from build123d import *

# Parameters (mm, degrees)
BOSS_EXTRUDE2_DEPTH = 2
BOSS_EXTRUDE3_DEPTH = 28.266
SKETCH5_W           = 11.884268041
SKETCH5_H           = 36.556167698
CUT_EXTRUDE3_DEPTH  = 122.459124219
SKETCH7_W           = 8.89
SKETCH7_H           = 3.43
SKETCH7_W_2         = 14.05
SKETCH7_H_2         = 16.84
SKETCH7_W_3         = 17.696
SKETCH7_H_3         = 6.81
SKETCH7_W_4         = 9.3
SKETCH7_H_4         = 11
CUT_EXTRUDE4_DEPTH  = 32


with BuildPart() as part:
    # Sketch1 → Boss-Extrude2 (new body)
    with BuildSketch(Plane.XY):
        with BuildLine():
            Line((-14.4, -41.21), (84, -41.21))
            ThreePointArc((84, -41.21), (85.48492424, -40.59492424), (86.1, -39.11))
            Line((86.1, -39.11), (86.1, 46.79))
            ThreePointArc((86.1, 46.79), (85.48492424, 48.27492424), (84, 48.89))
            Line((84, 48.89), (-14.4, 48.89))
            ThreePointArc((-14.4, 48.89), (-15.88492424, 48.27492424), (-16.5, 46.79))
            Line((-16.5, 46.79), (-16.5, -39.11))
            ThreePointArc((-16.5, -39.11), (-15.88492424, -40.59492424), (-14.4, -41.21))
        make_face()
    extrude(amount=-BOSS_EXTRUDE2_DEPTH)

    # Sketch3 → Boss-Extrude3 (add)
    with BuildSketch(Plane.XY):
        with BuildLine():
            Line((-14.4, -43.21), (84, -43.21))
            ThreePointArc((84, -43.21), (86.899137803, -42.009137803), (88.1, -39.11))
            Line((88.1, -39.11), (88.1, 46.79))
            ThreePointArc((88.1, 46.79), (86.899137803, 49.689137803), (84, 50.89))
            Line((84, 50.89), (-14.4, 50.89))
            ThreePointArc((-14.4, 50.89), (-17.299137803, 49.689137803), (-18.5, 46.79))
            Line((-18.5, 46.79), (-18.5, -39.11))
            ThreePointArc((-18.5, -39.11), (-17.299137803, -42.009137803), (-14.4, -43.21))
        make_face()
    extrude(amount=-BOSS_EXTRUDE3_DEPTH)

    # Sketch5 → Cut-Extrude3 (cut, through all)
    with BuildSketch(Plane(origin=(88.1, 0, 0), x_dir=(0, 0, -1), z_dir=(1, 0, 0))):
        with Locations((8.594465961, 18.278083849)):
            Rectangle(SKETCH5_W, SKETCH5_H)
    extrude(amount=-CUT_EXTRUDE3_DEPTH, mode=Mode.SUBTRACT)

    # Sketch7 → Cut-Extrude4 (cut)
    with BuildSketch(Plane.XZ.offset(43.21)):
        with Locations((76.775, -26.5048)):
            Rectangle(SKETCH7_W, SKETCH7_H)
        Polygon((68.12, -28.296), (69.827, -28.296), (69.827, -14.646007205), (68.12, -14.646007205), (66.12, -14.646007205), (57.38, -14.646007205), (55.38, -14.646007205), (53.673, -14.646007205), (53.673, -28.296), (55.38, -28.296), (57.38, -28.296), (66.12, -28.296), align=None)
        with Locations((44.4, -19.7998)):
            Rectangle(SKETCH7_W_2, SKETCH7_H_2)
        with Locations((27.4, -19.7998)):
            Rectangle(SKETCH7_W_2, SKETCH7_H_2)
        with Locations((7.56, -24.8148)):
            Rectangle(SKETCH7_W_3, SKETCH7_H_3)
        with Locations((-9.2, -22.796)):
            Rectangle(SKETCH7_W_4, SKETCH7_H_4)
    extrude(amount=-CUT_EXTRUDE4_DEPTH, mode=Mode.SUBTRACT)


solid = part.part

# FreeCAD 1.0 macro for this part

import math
import FreeCAD as App
import Part
import Sketcher
Q = App.Units.Quantity

doc = App.newDocument("Part")
params = doc.addObject("Spreadsheet::Sheet", "Params")
for row, (alias, value) in enumerate([
    ("sketch1_radius", "2.1 mm"),
    ("sketch1_width", "98.4 mm"),
    ("sketch1_height", "85.9 mm"),
    ("pad1_length", "2 mm"),
    ("sketch2_radius", "4.1 mm"),
    ("sketch2_width", "98.4 mm"),
    ("sketch2_height", "85.9 mm"),
    ("pad2_length", "28.266 mm"),
    ("sketch4_height", "11 mm"),
    ("sketch4_width", "9.3 mm"),
    ("sketch4_width2", "8.89 mm"),
    ("sketch4_width3", "14.05 mm"),
    ("sketch4_height2", "3.43 mm"),
    ("pocket2_length", "32 mm"),
], start=1):
    params.set(f"A{row}", alias)
    params.set(f"B{row}", "=" + value)
    params.setAlias(f"B{row}", alias)

body = doc.addObject("PartDesign::Body", "Body")

# Sketch on XY plane
sketch1 = doc.addObject("Sketcher::SketchObject", "Sketch")
body.addObject(sketch1)
sketch1.AttachmentSupport = (doc.XY_Plane, [""])
sketch1.MapMode = "FlatFace"
sketch1.addGeometry(Part.LineSegment(App.Vector(-14.4, -41.21, 0), App.Vector(84, -41.21, 0)), False)
sketch1.addGeometry(Part.ArcOfCircle(Part.Circle(App.Vector(84, -39.11, 0), App.Vector(0, 0, 1), 2.1), math.radians(-90), math.radians(0)), False)
sketch1.addGeometry(Part.LineSegment(App.Vector(86.1, -39.11, 0), App.Vector(86.1, 46.79, 0)), False)
sketch1.addGeometry(Part.ArcOfCircle(Part.Circle(App.Vector(84, 46.79, 0), App.Vector(0, 0, 1), 2.1), math.radians(0), math.radians(90)), False)
sketch1.addGeometry(Part.LineSegment(App.Vector(84, 48.89, 0), App.Vector(-14.4, 48.89, 0)), False)
sketch1.addGeometry(Part.ArcOfCircle(Part.Circle(App.Vector(-14.4, 46.79, 0), App.Vector(0, 0, 1), 2.1), math.radians(90), math.radians(180)), False)
sketch1.addGeometry(Part.LineSegment(App.Vector(-16.5, 46.79, 0), App.Vector(-16.5, -39.11, 0)), False)
sketch1.addGeometry(Part.ArcOfCircle(Part.Circle(App.Vector(-14.4, -39.11, 0), App.Vector(0, 0, 1), 2.1), math.radians(-180), math.radians(-90)), False)
sketch1.addConstraint(Sketcher.Constraint("Tangent", 0, 2, 1, 1))
sketch1.addConstraint(Sketcher.Constraint("Tangent", 1, 2, 2, 1))
sketch1.addConstraint(Sketcher.Constraint("Tangent", 2, 2, 3, 1))
sketch1.addConstraint(Sketcher.Constraint("Tangent", 3, 2, 4, 1))
sketch1.addConstraint(Sketcher.Constraint("Tangent", 4, 2, 5, 1))
sketch1.addConstraint(Sketcher.Constraint("Tangent", 5, 2, 6, 1))
sketch1.addConstraint(Sketcher.Constraint("Tangent", 6, 2, 7, 1))
sketch1.addConstraint(Sketcher.Constraint("Tangent", 7, 2, 0, 1))
sketch1.addConstraint(Sketcher.Constraint("Horizontal", 0))
sketch1.addConstraint(Sketcher.Constraint("Vertical", 2))
sketch1.addConstraint(Sketcher.Constraint("Horizontal", 4))
sketch1.addConstraint(Sketcher.Constraint("Vertical", 6))
sketch1.addConstraint(Sketcher.Constraint("Equal", 1, 3))
sketch1.addConstraint(Sketcher.Constraint("Equal", 3, 5))
sketch1.addConstraint(Sketcher.Constraint("Equal", 5, 7))
sketch1.addConstraint(Sketcher.Constraint("Radius", 1, Q("2.1 mm")))
sketch1.addConstraint(Sketcher.Constraint("DistanceX", 0, 1, 0, 2, Q("98.4 mm")))
sketch1.addConstraint(Sketcher.Constraint("DistanceY", 2, 1, 2, 2, Q("85.9 mm")))
sketch1.addConstraint(Sketcher.Constraint("DistanceX", -1, 1, 1, 3, Q("84 mm")))
sketch1.addConstraint(Sketcher.Constraint("DistanceY", 1, 3, -1, 1, Q("39.11 mm")))
sketch1.setExpression("Constraints[15]", "Params.sketch1_radius")
sketch1.setExpression("Constraints[16]", "Params.sketch1_width")
sketch1.setExpression("Constraints[17]", "Params.sketch1_height")
pad1 = doc.addObject("PartDesign::Pad", "Pad")
body.addObject(pad1)
pad1.Profile = sketch1
pad1.setExpression("Length", "Params.pad1_length")
pad1.Reversed = True

# Sketch on XY plane
sketch2 = doc.addObject("Sketcher::SketchObject", "Sketch001")
body.addObject(sketch2)
sketch2.AttachmentSupport = (doc.XY_Plane, [""])
sketch2.MapMode = "FlatFace"
sketch2.addGeometry(Part.LineSegment(App.Vector(-14.4, -43.21, 0), App.Vector(84, -43.21, 0)), False)
sketch2.addGeometry(Part.ArcOfCircle(Part.Circle(App.Vector(84, -39.11, 0), App.Vector(0, 0, 1), 4.1), math.radians(-90), math.radians(0)), False)
sketch2.addGeometry(Part.LineSegment(App.Vector(88.1, -39.11, 0), App.Vector(88.1, 46.79, 0)), False)
sketch2.addGeometry(Part.ArcOfCircle(Part.Circle(App.Vector(84, 46.79, 0), App.Vector(0, 0, 1), 4.1), math.radians(0), math.radians(90)), False)
sketch2.addGeometry(Part.LineSegment(App.Vector(84, 50.89, 0), App.Vector(-14.4, 50.89, 0)), False)
sketch2.addGeometry(Part.ArcOfCircle(Part.Circle(App.Vector(-14.4, 46.79, 0), App.Vector(0, 0, 1), 4.1), math.radians(90), math.radians(180)), False)
sketch2.addGeometry(Part.LineSegment(App.Vector(-18.5, 46.79, 0), App.Vector(-18.5, -39.11, 0)), False)
sketch2.addGeometry(Part.ArcOfCircle(Part.Circle(App.Vector(-14.4, -39.11, 0), App.Vector(0, 0, 1), 4.1), math.radians(180), math.radians(270)), False)
sketch2.addConstraint(Sketcher.Constraint("Tangent", 0, 2, 1, 1))
sketch2.addConstraint(Sketcher.Constraint("Tangent", 1, 2, 2, 1))
sketch2.addConstraint(Sketcher.Constraint("Tangent", 2, 2, 3, 1))
sketch2.addConstraint(Sketcher.Constraint("Tangent", 3, 2, 4, 1))
sketch2.addConstraint(Sketcher.Constraint("Tangent", 4, 2, 5, 1))
sketch2.addConstraint(Sketcher.Constraint("Tangent", 5, 2, 6, 1))
sketch2.addConstraint(Sketcher.Constraint("Tangent", 6, 2, 7, 1))
sketch2.addConstraint(Sketcher.Constraint("Tangent", 7, 2, 0, 1))
sketch2.addConstraint(Sketcher.Constraint("Horizontal", 0))
sketch2.addConstraint(Sketcher.Constraint("Vertical", 2))
sketch2.addConstraint(Sketcher.Constraint("Horizontal", 4))
sketch2.addConstraint(Sketcher.Constraint("Vertical", 6))
sketch2.addConstraint(Sketcher.Constraint("Equal", 1, 3))
sketch2.addConstraint(Sketcher.Constraint("Equal", 3, 5))
sketch2.addConstraint(Sketcher.Constraint("Equal", 5, 7))
sketch2.addConstraint(Sketcher.Constraint("Radius", 1, Q("4.1 mm")))
sketch2.addConstraint(Sketcher.Constraint("DistanceX", 0, 1, 0, 2, Q("98.4 mm")))
sketch2.addConstraint(Sketcher.Constraint("DistanceY", 2, 1, 2, 2, Q("85.9 mm")))
sketch2.addConstraint(Sketcher.Constraint("DistanceX", -1, 1, 1, 3, Q("84 mm")))
sketch2.addConstraint(Sketcher.Constraint("DistanceY", 1, 3, -1, 1, Q("39.11 mm")))
sketch2.setExpression("Constraints[15]", "Params.sketch2_radius")
sketch2.setExpression("Constraints[16]", "Params.sketch2_width")
sketch2.setExpression("Constraints[17]", "Params.sketch2_height")
pad2 = doc.addObject("PartDesign::Pad", "Pad001")
body.addObject(pad2)
pad2.Profile = sketch2
pad2.setExpression("Length", "Params.pad2_length")
pad2.Reversed = True

# Sketch on YZ plane
sketch3 = doc.addObject("Sketcher::SketchObject", "Sketch002")
body.addObject(sketch3)
sketch3.AttachmentSupport = (doc.YZ_Plane, [""])
sketch3.MapMode = "FlatFace"
sketch3.AttachmentOffset = App.Placement(App.Vector(0, 0, 88.1), App.Rotation())
sketch3.addGeometry(Part.LineSegment(App.Vector(36.556168, -2.652332, 0), App.Vector(0, -2.652332, 0)), False)
sketch3.addGeometry(Part.LineSegment(App.Vector(0, -2.652332, 0), App.Vector(0, -14.5366, 0)), False)
sketch3.addGeometry(Part.LineSegment(App.Vector(0, -14.5366, 0), App.Vector(36.556168, -14.5366, 0)), False)
sketch3.addGeometry(Part.LineSegment(App.Vector(36.556168, -14.5366, 0), App.Vector(36.556168, -2.652332, 0)), False)
sketch3.addConstraint(Sketcher.Constraint("Coincident", 0, 2, 1, 1))
sketch3.addConstraint(Sketcher.Constraint("Coincident", 1, 2, 2, 1))
sketch3.addConstraint(Sketcher.Constraint("Coincident", 2, 2, 3, 1))
sketch3.addConstraint(Sketcher.Constraint("Coincident", 3, 2, 0, 1))
sketch3.addConstraint(Sketcher.Constraint("Horizontal", 0))
sketch3.addConstraint(Sketcher.Constraint("Vertical", 1))
sketch3.addConstraint(Sketcher.Constraint("Horizontal", 2))
sketch3.addConstraint(Sketcher.Constraint("Vertical", 3))
sketch3.addConstraint(Sketcher.Constraint("PointOnObject", 0, 2, -2))
sketch3.addConstraint(Sketcher.Constraint("DistanceY", 1, 2, 1, 1, Q("11.884268 mm")))
sketch3.addConstraint(Sketcher.Constraint("DistanceY", 1, 2, -1, 1, Q("14.5366 mm")))
sketch3.addConstraint(Sketcher.Constraint("DistanceX", 0, 2, 0, 1, Q("36.556168 mm")))
pocket1 = doc.addObject("PartDesign::Pocket", "Pocket")
body.addObject(pocket1)
pocket1.Profile = sketch3
pocket1.Type = "ThroughAll"

# Sketch on XZ plane
sketch4 = doc.addObject("Sketcher::SketchObject", "Sketch003")
body.addObject(sketch4)
sketch4.AttachmentSupport = (doc.XZ_Plane, [""])
sketch4.MapMode = "FlatFace"
sketch4.AttachmentOffset = App.Placement(App.Vector(0, 0, 43.21), App.Rotation())
sketch4.addGeometry(Part.LineSegment(App.Vector(72.33, -24.7898, 0), App.Vector(72.33, -28.2198, 0)), False)
sketch4.addGeometry(Part.LineSegment(App.Vector(72.33, -28.2198, 0), App.Vector(81.22, -28.2198, 0)), False)
sketch4.addGeometry(Part.LineSegment(App.Vector(81.22, -28.2198, 0), App.Vector(81.22, -24.7898, 0)), False)
sketch4.addGeometry(Part.LineSegment(App.Vector(81.22, -24.7898, 0), App.Vector(72.33, -24.7898, 0)), False)
sketch4.addGeometry(Part.LineSegment(App.Vector(69.827, -28.296, 0), App.Vector(69.827, -14.646007, 0)), False)
sketch4.addGeometry(Part.LineSegment(App.Vector(69.827, -14.646007, 0), App.Vector(53.673, -14.646007, 0)), False)
sketch4.addGeometry(Part.LineSegment(App.Vector(53.673, -14.646007, 0), App.Vector(53.673, -28.296, 0)), False)
sketch4.addGeometry(Part.LineSegment(App.Vector(53.673, -28.296, 0), App.Vector(69.827, -28.296, 0)), False)
sketch4.addGeometry(Part.LineSegment(App.Vector(37.375, -11.3798, 0), App.Vector(37.375, -28.2198, 0)), False)
sketch4.addGeometry(Part.LineSegment(App.Vector(37.375, -28.2198, 0), App.Vector(51.425, -28.2198, 0)), False)
sketch4.addGeometry(Part.LineSegment(App.Vector(51.425, -28.2198, 0), App.Vector(51.425, -11.3798, 0)), False)
sketch4.addGeometry(Part.LineSegment(App.Vector(51.425, -11.3798, 0), App.Vector(37.375, -11.3798, 0)), False)
sketch4.addGeometry(Part.LineSegment(App.Vector(20.375, -11.3798, 0), App.Vector(20.375, -28.2198, 0)), False)
sketch4.addGeometry(Part.LineSegment(App.Vector(20.375, -28.2198, 0), App.Vector(34.425, -28.2198, 0)), False)
sketch4.addGeometry(Part.LineSegment(App.Vector(34.425, -28.2198, 0), App.Vector(34.425, -11.3798, 0)), False)
sketch4.addGeometry(Part.LineSegment(App.Vector(34.425, -11.3798, 0), App.Vector(20.375, -11.3798, 0)), False)
sketch4.addGeometry(Part.LineSegment(App.Vector(-1.288, -21.4098, 0), App.Vector(-1.288, -28.2198, 0)), False)
sketch4.addGeometry(Part.LineSegment(App.Vector(-1.288, -28.2198, 0), App.Vector(16.408, -28.2198, 0)), False)
sketch4.addGeometry(Part.LineSegment(App.Vector(16.408, -28.2198, 0), App.Vector(16.408, -21.4098, 0)), False)
sketch4.addGeometry(Part.LineSegment(App.Vector(16.408, -21.4098, 0), App.Vector(-1.288, -21.4098, 0)), False)
sketch4.addGeometry(Part.LineSegment(App.Vector(-13.85, -17.296, 0), App.Vector(-13.85, -28.296, 0)), False)
sketch4.addGeometry(Part.LineSegment(App.Vector(-13.85, -28.296, 0), App.Vector(-4.55, -28.296, 0)), False)
sketch4.addGeometry(Part.LineSegment(App.Vector(-4.55, -28.296, 0), App.Vector(-4.55, -17.296, 0)), False)
sketch4.addGeometry(Part.LineSegment(App.Vector(-4.55, -17.296, 0), App.Vector(-13.85, -17.296, 0)), False)
sketch4.addConstraint(Sketcher.Constraint("Coincident", 0, 2, 1, 1))
sketch4.addConstraint(Sketcher.Constraint("Coincident", 1, 2, 2, 1))
sketch4.addConstraint(Sketcher.Constraint("Coincident", 2, 2, 3, 1))
sketch4.addConstraint(Sketcher.Constraint("Coincident", 3, 2, 0, 1))
sketch4.addConstraint(Sketcher.Constraint("Coincident", 4, 2, 5, 1))
sketch4.addConstraint(Sketcher.Constraint("Coincident", 5, 2, 6, 1))
sketch4.addConstraint(Sketcher.Constraint("Coincident", 6, 2, 7, 1))
sketch4.addConstraint(Sketcher.Constraint("Coincident", 7, 2, 4, 1))
sketch4.addConstraint(Sketcher.Constraint("Coincident", 8, 2, 9, 1))
sketch4.addConstraint(Sketcher.Constraint("Coincident", 9, 2, 10, 1))
sketch4.addConstraint(Sketcher.Constraint("Coincident", 10, 2, 11, 1))
sketch4.addConstraint(Sketcher.Constraint("Coincident", 11, 2, 8, 1))
sketch4.addConstraint(Sketcher.Constraint("Coincident", 12, 2, 13, 1))
sketch4.addConstraint(Sketcher.Constraint("Coincident", 13, 2, 14, 1))
sketch4.addConstraint(Sketcher.Constraint("Coincident", 14, 2, 15, 1))
sketch4.addConstraint(Sketcher.Constraint("Coincident", 15, 2, 12, 1))
sketch4.addConstraint(Sketcher.Constraint("Coincident", 16, 2, 17, 1))
sketch4.addConstraint(Sketcher.Constraint("Coincident", 17, 2, 18, 1))
sketch4.addConstraint(Sketcher.Constraint("Coincident", 18, 2, 19, 1))
sketch4.addConstraint(Sketcher.Constraint("Coincident", 19, 2, 16, 1))
sketch4.addConstraint(Sketcher.Constraint("Coincident", 20, 2, 21, 1))
sketch4.addConstraint(Sketcher.Constraint("Coincident", 21, 2, 22, 1))
sketch4.addConstraint(Sketcher.Constraint("Coincident", 22, 2, 23, 1))
sketch4.addConstraint(Sketcher.Constraint("Coincident", 23, 2, 20, 1))
sketch4.addConstraint(Sketcher.Constraint("Vertical", 0))
sketch4.addConstraint(Sketcher.Constraint("Horizontal", 1))
sketch4.addConstraint(Sketcher.Constraint("Vertical", 2))
sketch4.addConstraint(Sketcher.Constraint("Horizontal", 3))
sketch4.addConstraint(Sketcher.Constraint("Vertical", 4))
sketch4.addConstraint(Sketcher.Constraint("Horizontal", 5))
sketch4.addConstraint(Sketcher.Constraint("Vertical", 6))
sketch4.addConstraint(Sketcher.Constraint("Horizontal", 7))
sketch4.addConstraint(Sketcher.Constraint("Vertical", 8))
sketch4.addConstraint(Sketcher.Constraint("Horizontal", 9))
sketch4.addConstraint(Sketcher.Constraint("Vertical", 10))
sketch4.addConstraint(Sketcher.Constraint("Horizontal", 11))
sketch4.addConstraint(Sketcher.Constraint("Vertical", 12))
sketch4.addConstraint(Sketcher.Constraint("Horizontal", 13))
sketch4.addConstraint(Sketcher.Constraint("Vertical", 14))
sketch4.addConstraint(Sketcher.Constraint("Horizontal", 15))
sketch4.addConstraint(Sketcher.Constraint("Vertical", 16))
sketch4.addConstraint(Sketcher.Constraint("Horizontal", 17))
sketch4.addConstraint(Sketcher.Constraint("Vertical", 18))
sketch4.addConstraint(Sketcher.Constraint("Horizontal", 19))
sketch4.addConstraint(Sketcher.Constraint("Vertical", 20))
sketch4.addConstraint(Sketcher.Constraint("Horizontal", 21))
sketch4.addConstraint(Sketcher.Constraint("Vertical", 22))
sketch4.addConstraint(Sketcher.Constraint("Horizontal", 23))
sketch4.addConstraint(Sketcher.Constraint("Horizontal", 1, 2, 8, 2))
sketch4.addConstraint(Sketcher.Constraint("Horizontal", 9, 2, 12, 2))
sketch4.addConstraint(Sketcher.Constraint("Horizontal", 11, 2, 14, 2))
sketch4.addConstraint(Sketcher.Constraint("Horizontal", 13, 2, 16, 2))
sketch4.addConstraint(Sketcher.Constraint("Horizontal", 7, 2, 20, 2))
sketch4.addConstraint(Sketcher.Constraint("Equal", 11, 13))
sketch4.addConstraint(Sketcher.Constraint("DistanceY", 20, 2, 20, 1, Q("11 mm")))
sketch4.addConstraint(Sketcher.Constraint("DistanceX", 21, 1, 21, 2, Q("9.3 mm")))
sketch4.addConstraint(Sketcher.Constraint("DistanceX", 12, 2, 8, 2, Q("17 mm")))
sketch4.addConstraint(Sketcher.Constraint("DistanceX", 1, 1, 1, 2, Q("8.89 mm")))
sketch4.addConstraint(Sketcher.Constraint("DistanceX", 9, 1, 9, 2, Q("14.05 mm")))
sketch4.addConstraint(Sketcher.Constraint("DistanceY", 0, 2, 0, 1, Q("3.43 mm")))
sketch4.addConstraint(Sketcher.Constraint("DistanceY", 8, 2, 8, 1, Q("16.84 mm")))
sketch4.addConstraint(Sketcher.Constraint("DistanceY", 16, 2, 16, 1, Q("6.81 mm")))
sketch4.addConstraint(Sketcher.Constraint("DistanceX", 5, 2, 5, 1, Q("16.154 mm")))
sketch4.addConstraint(Sketcher.Constraint("DistanceX", 17, 1, 17, 2, Q("17.696 mm")))
sketch4.addConstraint(Sketcher.Constraint("DistanceX", -1, 1, 0, 2, Q("72.33 mm")))
sketch4.addConstraint(Sketcher.Constraint("DistanceX", 20, 2, -1, 1, Q("13.85 mm")))
sketch4.addConstraint(Sketcher.Constraint("DistanceX", -1, 1, 4, 2, Q("69.827 mm")))
sketch4.addConstraint(Sketcher.Constraint("DistanceY", 6, 2, -1, 1, Q("28.296 mm")))
sketch4.addConstraint(Sketcher.Constraint("DistanceX", -1, 1, 8, 2, Q("37.375 mm")))
sketch4.addConstraint(Sketcher.Constraint("DistanceX", 16, 2, -1, 1, Q("1.288 mm")))
sketch4.addConstraint(Sketcher.Constraint("DistanceY", 0, 2, -1, 1, Q("28.2198 mm")))
sketch4.addConstraint(Sketcher.Constraint("DistanceY", 4, 1, 4, 2, Q("13.649993 mm")))
sketch4.setExpression("Constraints[54]", "Params.sketch4_height")
sketch4.setExpression("Constraints[55]", "Params.sketch4_width")
sketch4.setExpression("Constraints[57]", "Params.sketch4_width2")
sketch4.setExpression("Constraints[58]", "Params.sketch4_width3")
sketch4.setExpression("Constraints[59]", "Params.sketch4_height2")
pocket2 = doc.addObject("PartDesign::Pocket", "Pocket001")
body.addObject(pocket2)
pocket2.Profile = sketch4
pocket2.setExpression("Length", "Params.pocket2_length")

doc.recompute()
